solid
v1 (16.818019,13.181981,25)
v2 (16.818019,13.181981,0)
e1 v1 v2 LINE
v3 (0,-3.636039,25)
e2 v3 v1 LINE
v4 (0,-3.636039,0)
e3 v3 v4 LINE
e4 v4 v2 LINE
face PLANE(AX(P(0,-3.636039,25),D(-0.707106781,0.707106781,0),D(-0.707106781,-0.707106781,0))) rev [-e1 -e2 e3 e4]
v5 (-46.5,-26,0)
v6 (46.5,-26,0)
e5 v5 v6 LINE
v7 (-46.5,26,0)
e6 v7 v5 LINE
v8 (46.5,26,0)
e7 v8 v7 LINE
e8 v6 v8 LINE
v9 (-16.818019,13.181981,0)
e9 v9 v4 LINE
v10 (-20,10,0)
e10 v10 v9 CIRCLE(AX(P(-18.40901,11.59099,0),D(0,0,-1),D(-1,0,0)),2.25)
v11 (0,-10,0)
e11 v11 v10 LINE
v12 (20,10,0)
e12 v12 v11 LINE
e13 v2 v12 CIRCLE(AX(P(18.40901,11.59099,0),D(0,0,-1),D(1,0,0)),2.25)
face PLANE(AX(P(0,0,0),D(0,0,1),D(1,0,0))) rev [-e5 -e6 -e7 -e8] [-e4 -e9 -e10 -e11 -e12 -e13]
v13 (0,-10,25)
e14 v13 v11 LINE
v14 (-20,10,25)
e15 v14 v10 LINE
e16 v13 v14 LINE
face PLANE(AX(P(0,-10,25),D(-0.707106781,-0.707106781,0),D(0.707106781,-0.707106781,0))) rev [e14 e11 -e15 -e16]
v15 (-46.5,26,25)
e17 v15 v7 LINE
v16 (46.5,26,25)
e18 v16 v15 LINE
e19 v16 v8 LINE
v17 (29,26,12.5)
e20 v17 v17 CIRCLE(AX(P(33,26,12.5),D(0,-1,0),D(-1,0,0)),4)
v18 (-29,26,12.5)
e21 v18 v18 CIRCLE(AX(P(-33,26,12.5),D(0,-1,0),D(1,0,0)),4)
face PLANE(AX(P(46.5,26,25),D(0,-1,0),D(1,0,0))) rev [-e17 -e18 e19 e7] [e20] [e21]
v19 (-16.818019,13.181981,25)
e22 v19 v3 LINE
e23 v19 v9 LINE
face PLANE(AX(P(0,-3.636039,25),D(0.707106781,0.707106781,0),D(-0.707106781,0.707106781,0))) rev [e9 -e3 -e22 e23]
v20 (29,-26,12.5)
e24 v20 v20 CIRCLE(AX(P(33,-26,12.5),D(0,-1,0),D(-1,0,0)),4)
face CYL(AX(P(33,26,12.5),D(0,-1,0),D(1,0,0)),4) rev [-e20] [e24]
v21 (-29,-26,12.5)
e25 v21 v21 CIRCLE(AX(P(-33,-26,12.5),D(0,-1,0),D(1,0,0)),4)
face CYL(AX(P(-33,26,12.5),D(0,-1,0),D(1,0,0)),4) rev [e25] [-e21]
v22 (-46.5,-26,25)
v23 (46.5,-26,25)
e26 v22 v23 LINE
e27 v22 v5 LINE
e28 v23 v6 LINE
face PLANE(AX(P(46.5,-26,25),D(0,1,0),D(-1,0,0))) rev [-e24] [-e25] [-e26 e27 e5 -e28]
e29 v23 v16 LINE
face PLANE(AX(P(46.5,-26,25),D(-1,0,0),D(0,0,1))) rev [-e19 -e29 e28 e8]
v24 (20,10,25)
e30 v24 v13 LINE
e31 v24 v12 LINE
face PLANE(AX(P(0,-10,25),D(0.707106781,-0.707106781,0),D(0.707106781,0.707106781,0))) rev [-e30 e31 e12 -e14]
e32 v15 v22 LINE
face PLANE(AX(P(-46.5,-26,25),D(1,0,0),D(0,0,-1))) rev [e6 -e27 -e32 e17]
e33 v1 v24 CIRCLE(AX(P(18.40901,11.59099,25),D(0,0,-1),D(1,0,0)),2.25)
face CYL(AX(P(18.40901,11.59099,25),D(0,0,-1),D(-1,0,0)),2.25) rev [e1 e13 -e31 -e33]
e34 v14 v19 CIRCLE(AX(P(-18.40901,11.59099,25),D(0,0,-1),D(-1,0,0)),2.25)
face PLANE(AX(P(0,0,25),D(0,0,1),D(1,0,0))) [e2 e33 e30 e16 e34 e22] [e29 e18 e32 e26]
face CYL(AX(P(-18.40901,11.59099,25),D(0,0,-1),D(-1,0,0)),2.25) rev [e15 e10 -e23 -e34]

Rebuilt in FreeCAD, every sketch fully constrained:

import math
import FreeCAD as App
import Part
import Sketcher

V = App.Vector

doc = App.newDocument("Part")
params = doc.addObject("Spreadsheet::Sheet", "Params")
for row, (alias, value) in enumerate([
    ("sketch1_width", "93 mm"),
    ("sketch1_height", "52 mm"),
    ("pad1_length", "25 mm"),
    ("sketch2_radius", "2.25 mm"),
    ("sketch3_diameter", "8 mm"),
], start=1):
    params.set(f"A{row}", alias)
    params.set(f"B{row}", "=" + value)
    params.setAlias(f"B{row}", alias)

body = doc.addObject("PartDesign::Body", "Body")

# Sketch on XY plane
sketch1 = body.newObject("Sketcher::SketchObject", "Sketch")
sketch1.AttachmentSupport = (doc.getObject("XY_Plane"), [""])
sketch1.MapMode = "FlatFace"
sketch1.addGeometry([
    Part.LineSegment(V(-46, 26, 0), V(-46, -26, 0)),
    Part.LineSegment(V(-46, -26, 0), V(46, -26, 0)),
    Part.LineSegment(V(46, -26, 0), V(46, 26, 0)),
    Part.LineSegment(V(46, 26, 0), V(-46, 26, 0)),
], False)
sketch1.addConstraint([
    Sketcher.Constraint("Coincident", 0, 2, 1, 1),
    Sketcher.Constraint("Coincident", 1, 2, 2, 1),
    Sketcher.Constraint("Coincident", 2, 2, 3, 1),
    Sketcher.Constraint("Coincident", 3, 2, 0, 1),
    Sketcher.Constraint("Vertical", 0),
    Sketcher.Constraint("Horizontal", 1),
    Sketcher.Constraint("Vertical", 2),
    Sketcher.Constraint("Horizontal", 3),
    Sketcher.Constraint("Symmetric", 0, 2, 2, 2, -1, 1),
    Sketcher.Constraint("DistanceX", 1, 1, 1, 2, 93.0),
    Sketcher.Constraint("DistanceY", 0, 2, 0, 1, 52.0),
])
sketch1.setExpression("Constraints[9]", "Params.sketch1_width")
sketch1.setExpression("Constraints[10]", "Params.sketch1_height")
pad1 = body.newObject("PartDesign::Pad", "Pad")
pad1.Profile = sketch1
pad1.setExpression("Length", "Params.pad1_length")

# Sketch on XY plane
sketch2 = body.newObject("Sketcher::SketchObject", "Sketch001")
sketch2.AttachmentSupport = (doc.getObject("XY_Plane"), [""])
sketch2.MapMode = "FlatFace"
sketch2.addGeometry([
    Part.LineSegment(V(0, -10, 0), V(-20, 10, 0)),  # 0
    Part.ArcOfCircle(Part.Circle(V(-18.4, 11.6, 0), V(0, 0, 1), 2.2), math.radians(45), math.radians(225)),  # 1
    Part.LineSegment(V(-16.8, 13.2, 0), V(0, -3.6, 0)),  # 2
    Part.LineSegment(V(0, -3.6, 0), V(16.8, 13.2, 0)),  # 3
    Part.ArcOfCircle(Part.Circle(V(18.4, 11.6, 0), V(0, 0, 1), 2.2), math.radians(-45), math.radians(135)),  # 4
    Part.LineSegment(V(20, 10, 0), V(0, -10, 0)),  # 5
], False)
sketch2.addConstraint([
    Sketcher.Constraint("Tangent", 0, 2, 1, 2),
    Sketcher.Constraint("Tangent", 1, 1, 2, 1),
    Sketcher.Constraint("Coincident", 2, 2, 3, 1),
    Sketcher.Constraint("Tangent", 3, 2, 4, 2),
    Sketcher.Constraint("Tangent", 4, 1, 5, 1),
    Sketcher.Constraint("Coincident", 5, 2, 0, 1),
    Sketcher.Constraint("Equal", 1, 4),
    Sketcher.Constraint("Symmetric", 1, 3, 4, 3, -2),
    Sketcher.Constraint("PointOnObject", 2, 2, -2),
    Sketcher.Constraint("PointOnObject", 5, 2, -2),
    Sketcher.Constraint("Parallel", 0, 2),
    Sketcher.Constraint("Perpendicular", 2, 3),
    Sketcher.Constraint("Radius", 1, 2.25),
    Sketcher.Constraint("DistanceX", 0, 2, -1, 1, 20.0),
    Sketcher.Constraint("DistanceY", -1, 1, 0, 2, 10.0),
])
sketch2.setExpression("Constraints[12]", "Params.sketch2_radius")
pocket1 = body.newObject("PartDesign::Pocket", "Pocket")
pocket1.Profile = sketch2
pocket1.Type = "ThroughAll"
pocket1.Reversed = True

# Sketch on XZ plane
sketch3 = body.newObject("Sketcher::SketchObject", "Sketch002")
sketch3.AttachmentSupport = (doc.getObject("XZ_Plane"), [""])
sketch3.MapMode = "FlatFace"
sketch3.AttachmentOffset = App.Placement(V(0, 0, 26), App.Rotation())
sketch3.addGeometry([
    Part.Circle(V(-33, 12.5, 0), V(0, 0, 1), 4),
    Part.Circle(V(33, 12.5, 0), V(0, 0, 1), 4),
], False)
sketch3.addConstraint([
    Sketcher.Constraint("Equal", 0, 1),
    Sketcher.Constraint("Symmetric", 0, 3, 1, 3, -2),
    Sketcher.Constraint("Diameter", 0, 8.0),
    Sketcher.Constraint("DistanceX", 0, 3, -1, 1, 33.0),
    Sketcher.Constraint("DistanceY", -1, 1, 0, 3, 12.5),
])
sketch3.setExpression("Constraints[2]", "Params.sketch3_diameter")
pocket2 = body.newObject("PartDesign::Pocket", "Pocket001")
pocket2.Profile = sketch3
pocket2.Type = "ThroughAll"

doc.recompute()
